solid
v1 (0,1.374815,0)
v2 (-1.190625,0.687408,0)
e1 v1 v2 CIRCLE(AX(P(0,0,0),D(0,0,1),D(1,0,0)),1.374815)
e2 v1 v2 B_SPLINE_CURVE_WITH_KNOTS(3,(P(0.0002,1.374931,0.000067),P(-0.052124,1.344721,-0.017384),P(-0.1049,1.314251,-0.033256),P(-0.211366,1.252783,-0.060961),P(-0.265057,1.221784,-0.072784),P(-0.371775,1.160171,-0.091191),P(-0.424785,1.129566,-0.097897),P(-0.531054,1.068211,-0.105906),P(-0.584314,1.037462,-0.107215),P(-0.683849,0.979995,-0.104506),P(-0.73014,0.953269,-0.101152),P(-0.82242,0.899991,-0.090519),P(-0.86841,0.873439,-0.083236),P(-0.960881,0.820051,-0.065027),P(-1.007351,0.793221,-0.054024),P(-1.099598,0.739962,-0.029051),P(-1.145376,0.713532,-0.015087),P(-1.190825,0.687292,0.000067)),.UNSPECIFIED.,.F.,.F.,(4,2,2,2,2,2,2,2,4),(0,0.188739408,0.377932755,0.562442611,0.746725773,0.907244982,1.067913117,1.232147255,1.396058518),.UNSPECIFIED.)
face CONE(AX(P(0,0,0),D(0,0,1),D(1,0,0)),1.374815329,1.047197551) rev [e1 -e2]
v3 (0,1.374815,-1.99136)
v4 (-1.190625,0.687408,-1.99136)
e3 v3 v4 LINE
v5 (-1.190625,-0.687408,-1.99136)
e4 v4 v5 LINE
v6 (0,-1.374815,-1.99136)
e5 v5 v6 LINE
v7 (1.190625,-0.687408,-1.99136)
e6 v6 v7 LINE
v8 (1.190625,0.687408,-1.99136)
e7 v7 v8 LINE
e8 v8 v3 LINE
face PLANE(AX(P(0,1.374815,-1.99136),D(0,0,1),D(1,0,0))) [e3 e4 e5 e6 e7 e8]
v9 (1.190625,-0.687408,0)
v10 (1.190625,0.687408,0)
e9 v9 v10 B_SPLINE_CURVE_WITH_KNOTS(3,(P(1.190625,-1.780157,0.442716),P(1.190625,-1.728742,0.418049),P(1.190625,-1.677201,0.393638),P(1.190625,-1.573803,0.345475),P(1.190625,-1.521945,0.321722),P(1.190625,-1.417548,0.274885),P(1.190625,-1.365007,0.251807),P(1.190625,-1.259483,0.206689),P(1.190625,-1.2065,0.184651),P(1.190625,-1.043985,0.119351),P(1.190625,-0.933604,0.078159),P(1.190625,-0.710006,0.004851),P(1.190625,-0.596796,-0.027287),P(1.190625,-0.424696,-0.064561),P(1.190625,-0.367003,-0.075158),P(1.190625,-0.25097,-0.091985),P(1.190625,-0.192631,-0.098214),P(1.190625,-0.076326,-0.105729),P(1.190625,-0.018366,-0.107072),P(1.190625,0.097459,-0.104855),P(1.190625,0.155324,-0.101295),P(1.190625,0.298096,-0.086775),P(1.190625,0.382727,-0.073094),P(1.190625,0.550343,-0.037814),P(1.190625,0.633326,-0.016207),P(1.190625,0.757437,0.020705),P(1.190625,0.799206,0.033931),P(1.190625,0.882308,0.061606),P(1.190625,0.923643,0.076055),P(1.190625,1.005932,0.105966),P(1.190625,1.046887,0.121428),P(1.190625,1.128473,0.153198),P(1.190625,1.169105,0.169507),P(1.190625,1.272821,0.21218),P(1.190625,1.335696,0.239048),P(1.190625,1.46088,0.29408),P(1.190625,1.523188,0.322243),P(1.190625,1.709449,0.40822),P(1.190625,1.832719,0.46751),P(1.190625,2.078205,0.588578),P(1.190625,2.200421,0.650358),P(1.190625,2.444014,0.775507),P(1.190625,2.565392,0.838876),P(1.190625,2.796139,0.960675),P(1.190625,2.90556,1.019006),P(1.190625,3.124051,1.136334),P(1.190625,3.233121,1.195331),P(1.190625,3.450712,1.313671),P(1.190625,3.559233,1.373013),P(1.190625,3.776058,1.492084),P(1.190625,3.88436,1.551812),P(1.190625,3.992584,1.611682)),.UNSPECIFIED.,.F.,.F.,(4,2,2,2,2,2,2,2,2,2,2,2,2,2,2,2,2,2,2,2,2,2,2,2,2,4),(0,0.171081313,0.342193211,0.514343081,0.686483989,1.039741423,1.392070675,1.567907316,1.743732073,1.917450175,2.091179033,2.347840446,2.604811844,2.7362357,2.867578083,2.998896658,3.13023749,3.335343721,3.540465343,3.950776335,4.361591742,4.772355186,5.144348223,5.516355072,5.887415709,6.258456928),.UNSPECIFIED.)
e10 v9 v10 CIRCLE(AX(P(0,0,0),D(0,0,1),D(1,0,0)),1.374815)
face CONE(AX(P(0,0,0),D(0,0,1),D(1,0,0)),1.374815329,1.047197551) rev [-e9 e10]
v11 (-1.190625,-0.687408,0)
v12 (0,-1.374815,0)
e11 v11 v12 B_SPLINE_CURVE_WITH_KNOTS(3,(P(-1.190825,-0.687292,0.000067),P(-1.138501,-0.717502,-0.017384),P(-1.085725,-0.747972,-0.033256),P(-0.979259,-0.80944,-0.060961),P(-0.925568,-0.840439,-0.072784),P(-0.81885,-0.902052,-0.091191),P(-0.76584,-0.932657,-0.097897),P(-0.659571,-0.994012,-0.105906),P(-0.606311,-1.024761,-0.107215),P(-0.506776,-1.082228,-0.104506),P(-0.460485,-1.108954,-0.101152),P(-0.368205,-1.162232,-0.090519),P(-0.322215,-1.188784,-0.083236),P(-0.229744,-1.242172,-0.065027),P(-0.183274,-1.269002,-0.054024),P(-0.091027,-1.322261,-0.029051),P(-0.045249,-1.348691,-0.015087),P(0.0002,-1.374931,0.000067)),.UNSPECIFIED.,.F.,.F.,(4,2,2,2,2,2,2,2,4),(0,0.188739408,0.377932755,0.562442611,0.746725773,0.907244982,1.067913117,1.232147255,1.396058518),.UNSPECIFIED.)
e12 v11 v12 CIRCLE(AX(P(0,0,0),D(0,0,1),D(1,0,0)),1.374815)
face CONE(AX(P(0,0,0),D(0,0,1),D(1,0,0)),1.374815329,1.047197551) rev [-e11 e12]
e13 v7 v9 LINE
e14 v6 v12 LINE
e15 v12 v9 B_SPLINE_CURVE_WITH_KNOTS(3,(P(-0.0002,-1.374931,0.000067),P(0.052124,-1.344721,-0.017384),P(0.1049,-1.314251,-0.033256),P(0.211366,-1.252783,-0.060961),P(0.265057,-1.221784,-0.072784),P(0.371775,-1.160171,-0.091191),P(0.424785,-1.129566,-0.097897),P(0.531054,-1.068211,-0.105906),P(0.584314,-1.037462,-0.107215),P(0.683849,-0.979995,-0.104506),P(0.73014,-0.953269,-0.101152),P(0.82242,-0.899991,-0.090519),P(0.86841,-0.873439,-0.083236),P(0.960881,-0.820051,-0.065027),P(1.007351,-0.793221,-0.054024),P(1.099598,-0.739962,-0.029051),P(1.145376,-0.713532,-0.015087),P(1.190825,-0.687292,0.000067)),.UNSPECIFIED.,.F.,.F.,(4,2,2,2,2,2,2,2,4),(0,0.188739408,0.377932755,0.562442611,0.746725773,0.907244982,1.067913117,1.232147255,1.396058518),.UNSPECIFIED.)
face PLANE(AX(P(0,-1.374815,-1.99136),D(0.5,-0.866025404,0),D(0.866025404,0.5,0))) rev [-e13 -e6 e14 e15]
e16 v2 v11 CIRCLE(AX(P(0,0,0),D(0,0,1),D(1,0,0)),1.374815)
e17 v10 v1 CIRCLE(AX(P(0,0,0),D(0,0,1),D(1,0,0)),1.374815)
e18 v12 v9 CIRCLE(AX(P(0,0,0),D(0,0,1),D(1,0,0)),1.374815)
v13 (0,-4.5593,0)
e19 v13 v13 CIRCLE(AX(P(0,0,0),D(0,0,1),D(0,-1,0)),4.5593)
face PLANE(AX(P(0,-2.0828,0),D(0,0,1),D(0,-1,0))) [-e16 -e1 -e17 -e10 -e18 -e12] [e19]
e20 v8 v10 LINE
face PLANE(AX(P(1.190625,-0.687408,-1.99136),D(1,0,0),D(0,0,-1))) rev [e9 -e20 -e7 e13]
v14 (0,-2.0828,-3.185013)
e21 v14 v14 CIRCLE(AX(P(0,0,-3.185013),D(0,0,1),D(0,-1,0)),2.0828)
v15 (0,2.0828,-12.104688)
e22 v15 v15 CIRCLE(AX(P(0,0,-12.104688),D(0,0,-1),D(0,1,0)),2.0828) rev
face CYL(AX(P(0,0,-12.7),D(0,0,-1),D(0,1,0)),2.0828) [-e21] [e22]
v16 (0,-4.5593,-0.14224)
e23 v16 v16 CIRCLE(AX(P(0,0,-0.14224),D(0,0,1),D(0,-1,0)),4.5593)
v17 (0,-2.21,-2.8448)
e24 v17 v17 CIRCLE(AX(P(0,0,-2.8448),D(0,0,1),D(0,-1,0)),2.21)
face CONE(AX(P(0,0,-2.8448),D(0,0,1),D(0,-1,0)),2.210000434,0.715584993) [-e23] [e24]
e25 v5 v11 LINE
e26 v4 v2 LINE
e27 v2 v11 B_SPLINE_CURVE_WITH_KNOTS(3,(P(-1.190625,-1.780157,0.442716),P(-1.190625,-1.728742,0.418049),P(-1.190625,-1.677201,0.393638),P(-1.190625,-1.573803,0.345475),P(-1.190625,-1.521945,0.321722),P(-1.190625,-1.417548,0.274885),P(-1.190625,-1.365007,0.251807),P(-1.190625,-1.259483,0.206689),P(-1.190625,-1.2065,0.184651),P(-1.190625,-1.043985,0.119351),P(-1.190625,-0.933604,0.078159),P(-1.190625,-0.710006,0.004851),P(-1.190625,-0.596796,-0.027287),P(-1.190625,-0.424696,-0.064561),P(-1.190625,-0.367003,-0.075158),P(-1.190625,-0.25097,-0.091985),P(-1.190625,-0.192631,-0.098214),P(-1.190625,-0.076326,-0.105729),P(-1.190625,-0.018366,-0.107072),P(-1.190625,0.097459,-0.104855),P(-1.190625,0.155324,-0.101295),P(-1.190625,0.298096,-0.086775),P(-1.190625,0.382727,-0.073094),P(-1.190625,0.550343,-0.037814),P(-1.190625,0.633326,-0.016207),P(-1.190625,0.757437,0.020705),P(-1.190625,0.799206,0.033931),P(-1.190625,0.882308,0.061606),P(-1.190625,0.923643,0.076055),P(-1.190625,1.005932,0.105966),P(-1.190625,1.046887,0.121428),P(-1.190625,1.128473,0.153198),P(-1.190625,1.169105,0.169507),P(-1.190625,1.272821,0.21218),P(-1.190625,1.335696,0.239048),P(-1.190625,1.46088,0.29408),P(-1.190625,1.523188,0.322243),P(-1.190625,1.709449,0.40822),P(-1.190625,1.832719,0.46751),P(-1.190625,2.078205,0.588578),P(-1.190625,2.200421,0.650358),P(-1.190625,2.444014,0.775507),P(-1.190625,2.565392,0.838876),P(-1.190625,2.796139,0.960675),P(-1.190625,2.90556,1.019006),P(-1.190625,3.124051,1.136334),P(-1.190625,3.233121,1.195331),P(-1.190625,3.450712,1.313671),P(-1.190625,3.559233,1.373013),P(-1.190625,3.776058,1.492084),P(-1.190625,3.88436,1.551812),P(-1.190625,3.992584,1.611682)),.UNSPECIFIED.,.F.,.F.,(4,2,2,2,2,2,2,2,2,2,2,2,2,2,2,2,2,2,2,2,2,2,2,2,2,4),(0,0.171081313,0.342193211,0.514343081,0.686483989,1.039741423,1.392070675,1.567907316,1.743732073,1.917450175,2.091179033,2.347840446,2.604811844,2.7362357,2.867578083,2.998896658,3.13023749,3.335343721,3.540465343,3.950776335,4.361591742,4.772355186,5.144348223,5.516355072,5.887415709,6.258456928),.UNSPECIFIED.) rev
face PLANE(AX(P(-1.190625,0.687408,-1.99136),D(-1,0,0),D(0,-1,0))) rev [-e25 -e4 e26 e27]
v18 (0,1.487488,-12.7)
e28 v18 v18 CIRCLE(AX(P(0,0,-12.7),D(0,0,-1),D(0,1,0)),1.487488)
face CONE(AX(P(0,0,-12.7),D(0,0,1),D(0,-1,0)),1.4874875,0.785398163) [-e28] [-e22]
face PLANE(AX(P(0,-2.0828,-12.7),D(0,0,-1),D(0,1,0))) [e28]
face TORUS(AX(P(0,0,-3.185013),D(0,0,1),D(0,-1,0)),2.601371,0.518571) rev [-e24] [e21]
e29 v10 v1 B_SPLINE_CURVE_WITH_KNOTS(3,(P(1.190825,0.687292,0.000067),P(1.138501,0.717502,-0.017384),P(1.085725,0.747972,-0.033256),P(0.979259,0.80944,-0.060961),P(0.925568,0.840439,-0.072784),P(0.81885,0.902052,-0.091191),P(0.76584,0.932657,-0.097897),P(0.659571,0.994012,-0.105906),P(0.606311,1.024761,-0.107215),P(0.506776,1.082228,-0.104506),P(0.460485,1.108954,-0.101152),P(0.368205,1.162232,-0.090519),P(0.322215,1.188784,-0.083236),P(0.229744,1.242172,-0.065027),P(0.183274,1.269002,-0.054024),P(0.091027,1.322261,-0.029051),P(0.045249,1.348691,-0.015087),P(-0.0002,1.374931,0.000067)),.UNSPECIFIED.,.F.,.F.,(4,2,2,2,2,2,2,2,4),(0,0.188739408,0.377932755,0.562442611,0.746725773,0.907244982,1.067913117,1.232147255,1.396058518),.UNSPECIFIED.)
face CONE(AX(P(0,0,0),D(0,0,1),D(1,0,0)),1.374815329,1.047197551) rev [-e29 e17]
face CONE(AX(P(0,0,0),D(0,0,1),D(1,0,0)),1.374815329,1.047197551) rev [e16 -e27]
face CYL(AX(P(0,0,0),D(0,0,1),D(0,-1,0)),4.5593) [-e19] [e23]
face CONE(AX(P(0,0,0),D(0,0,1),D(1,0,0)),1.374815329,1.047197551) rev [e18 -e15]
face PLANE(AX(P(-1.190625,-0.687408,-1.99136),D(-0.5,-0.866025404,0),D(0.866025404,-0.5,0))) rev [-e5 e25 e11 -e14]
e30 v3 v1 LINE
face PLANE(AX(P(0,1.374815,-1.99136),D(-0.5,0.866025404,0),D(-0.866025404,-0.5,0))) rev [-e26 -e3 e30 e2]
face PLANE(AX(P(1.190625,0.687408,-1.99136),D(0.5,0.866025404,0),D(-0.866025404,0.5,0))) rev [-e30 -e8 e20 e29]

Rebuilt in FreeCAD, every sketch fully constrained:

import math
import FreeCAD as App
import Part
import Sketcher
from FreeCAD import Vector
Q = App.Units.Quantity


def edges_at(feature, points):
    """Names of the edges that pass closest to the given points."""
    edges = feature.Shape.Edges
    near = lambda p: min(range(len(edges)), key=lambda i: edges[i].distToShape(Part.Vertex(*p))[0])
    return sorted({f"Edge{near(p) + 1}" for p in points})

doc = App.newDocument("Part")
body = doc.addObject("PartDesign::Body", "Body")

sketch1 = doc.addObject("Sketcher::SketchObject", "Sketch")
body.addObject(sketch1)
sketch1.AttachmentSupport = (doc.YZ_Plane, [""])
sketch1.MapMode = "FlatFace"
sketch1.addGeometry([
    Part.LineSegment(Vector(2.1, 0, 0), Vector(0, 0, 0)),
    Part.LineSegment(Vector(0, 0, 0), Vector(0, -12.7, 0)),
    Part.LineSegment(Vector(0, -12.7, 0), Vector(2.1, -12.7, 0)),
    Part.LineSegment(Vector(2.1, -12.7, 0), Vector(2.1, 0, 0)),
], False)
sketch1.addConstraint([
    Sketcher.Constraint("Coincident", 0, 2, 1, 1),
    Sketcher.Constraint("Coincident", 1, 2, 2, 1),
    Sketcher.Constraint("Coincident", 2, 2, 3, 1),
    Sketcher.Constraint("Coincident", 3, 2, 0, 1),
    Sketcher.Constraint("Horizontal", 0),
    Sketcher.Constraint("Vertical", 1),
    Sketcher.Constraint("Horizontal", 2),
    Sketcher.Constraint("Vertical", 3),
    Sketcher.Constraint("Coincident", 0, 2, -1, 1),
    Sketcher.Constraint("DistanceY", 1, 2, 1, 1, Q("0.5 in")),
    Sketcher.Constraint("DistanceX", 0, 2, 0, 1, Q("0.082 in")),
])
revolution = doc.addObject("PartDesign::Revolution", "Revolution")
body.addObject(revolution)
revolution.Profile = sketch1
revolution.ReferenceAxis = (sketch1, ["V_Axis"])
revolution.Angle = 360
doc.recompute()

chamfer = doc.addObject("PartDesign::Chamfer", "Chamfer")
body.addObject(chamfer)
chamfer.Base = (revolution, edges_at(revolution, [(0, -2.083, -12.7)]))
chamfer.Size = 0.595313

sketch2 = doc.addObject("Sketcher::SketchObject", "Sketch001")
body.addObject(sketch2)
sketch2.AttachmentSupport = (doc.YZ_Plane, [""])
sketch2.MapMode = "FlatFace"
sketch2.addGeometry([
    Part.LineSegment(Vector(4.56, -0.14, 0), Vector(4.56, 0, 0)),
    Part.LineSegment(Vector(4.56, 0, 0), Vector(0, 0, 0)),
    Part.LineSegment(Vector(0, 0, 0), Vector(0, -3.19, 0)),
    Part.LineSegment(Vector(0, -3.19, 0), Vector(2.08, -3.19, 0)),
    Part.ArcOfCircle(Part.Circle(Vector(2.6, -3.19, 0), Vector(0, 0, 1), 0.52), math.radians(139), math.radians(180)),
    Part.LineSegment(Vector(2.21, -2.84, 0), Vector(4.56, -0.14, 0)),
], False)
sketch2.addConstraint([
    Sketcher.Constraint("Coincident", 0, 2, 1, 1),
    Sketcher.Constraint("Coincident", 1, 2, 2, 1),
    Sketcher.Constraint("Coincident", 2, 2, 3, 1),
    Sketcher.Constraint("Coincident", 3, 2, 4, 2),
    Sketcher.Constraint("Tangent", 4, 1, 5, 1),
    Sketcher.Constraint("Coincident", 5, 2, 0, 1),
    Sketcher.Constraint("Vertical", 0),
    Sketcher.Constraint("Horizontal", 1),
    Sketcher.Constraint("Vertical", 2),
    Sketcher.Constraint("Horizontal", 3),
    Sketcher.Constraint("Coincident", 1, 2, -1, 1),
    Sketcher.Constraint("Horizontal", 4, 3, 2, 2),
    Sketcher.Constraint("Angle", 5, Q("49 deg")),
    Sketcher.Constraint("DistanceX", 3, 1, 3, 2, Q("0.082 in")),
    Sketcher.Constraint("DistanceX", 1, 2, 1, 1, Q("0.1795 in")),
    Sketcher.Constraint("DistanceY", 0, 1, 0, 2, Q("0.0056 in")),
    Sketcher.Constraint("DistanceY", 4, 1, -1, 1, Q("0.112 in")),
])
revolution2 = doc.addObject("PartDesign::Revolution", "Revolution001")
body.addObject(revolution2)
revolution2.Profile = sketch2
revolution2.ReferenceAxis = (sketch2, ["V_Axis"])
revolution2.Angle = 360

sketch3 = doc.addObject("Sketcher::SketchObject", "Sketch002")
body.addObject(sketch3)
sketch3.AttachmentSupport = (doc.XY_Plane, [""])
sketch3.MapMode = "FlatFace"
sketch3.addGeometry([
    Part.LineSegment(Vector(0, 1.4, 0), Vector(-1.2, 0.7, 0)),
    Part.LineSegment(Vector(-1.2, 0.7, 0), Vector(-1.2, -0.7, 0)),
    Part.LineSegment(Vector(-1.2, -0.7, 0), Vector(0, -1.4, 0)),
    Part.LineSegment(Vector(0, -1.4, 0), Vector(1.2, -0.7, 0)),
    Part.LineSegment(Vector(1.2, -0.7, 0), Vector(1.2, 0.7, 0)),
    Part.LineSegment(Vector(1.2, 0.7, 0), Vector(0, 1.4, 0)),
], False)
sketch3.addConstraint([
    Sketcher.Constraint("Coincident", 0, 2, 1, 1),
    Sketcher.Constraint("Coincident", 1, 2, 2, 1),
    Sketcher.Constraint("Coincident", 2, 2, 3, 1),
    Sketcher.Constraint("Coincident", 3, 2, 4, 1),
    Sketcher.Constraint("Coincident", 4, 2, 5, 1),
    Sketcher.Constraint("Coincident", 5, 2, 0, 1),
    Sketcher.Constraint("Vertical", 1),
    Sketcher.Constraint("Vertical", 4),
    Sketcher.Constraint("Symmetric", 0, 2, 3, 2, -1, 1),
    Sketcher.Constraint("Symmetric", 2, 2, 5, 2, -1, 1),
    Sketcher.Constraint("PointOnObject", 2, 2, -2),
    Sketcher.Constraint("Parallel", 2, 5),
    Sketcher.Constraint("Horizontal", 1, 2, 3, 2),
    Sketcher.Constraint("Angle", 0, Q("-150 deg")),
    Sketcher.Constraint("DistanceX", 0, 2, -1, 1, Q("0.046875 in")),
    Sketcher.Constraint("DistanceY", 1, 2, 1, 1, 1.374815),
])
pocket1 = doc.addObject("PartDesign::Pocket", "Pocket")
body.addObject(pocket1)
pocket1.Profile = sketch3
pocket1.Length = Q("0.0784 in")

sketch4 = doc.addObject("Sketcher::SketchObject", "Sketch003")
body.addObject(sketch4)
sketch4.AttachmentSupport = (doc.YZ_Plane, [""])
sketch4.MapMode = "FlatFace"
sketch4.addGeometry([
    Part.LineSegment(Vector(0, 0, 0), Vector(-1.4, 0, 0)),
    Part.LineSegment(Vector(-1.4, 0, 0), Vector(0, -0.8, 0)),
    Part.LineSegment(Vector(0, -0.8, 0), Vector(0, 0, 0)),
], False)
sketch4.addConstraint([
    Sketcher.Constraint("Coincident", 0, 2, 1, 1),
    Sketcher.Constraint("Coincident", 1, 2, 2, 1),
    Sketcher.Constraint("Coincident", 2, 2, 0, 1),
    Sketcher.Constraint("Horizontal", 0),
    Sketcher.Constraint("Vertical", 2),
    Sketcher.Constraint("Coincident", 2, 2, -1, 1),
    Sketcher.Constraint("Angle", 1, Q("-30 deg")),
    Sketcher.Constraint("DistanceY", 2, 1, 2, 2, Q("0.03125 in")),
])
groove = doc.addObject("PartDesign::Groove", "Groove")
body.addObject(groove)
groove.Profile = sketch4
groove.ReferenceAxis = (sketch4, ["V_Axis"])
groove.Angle = 360

doc.recompute()
